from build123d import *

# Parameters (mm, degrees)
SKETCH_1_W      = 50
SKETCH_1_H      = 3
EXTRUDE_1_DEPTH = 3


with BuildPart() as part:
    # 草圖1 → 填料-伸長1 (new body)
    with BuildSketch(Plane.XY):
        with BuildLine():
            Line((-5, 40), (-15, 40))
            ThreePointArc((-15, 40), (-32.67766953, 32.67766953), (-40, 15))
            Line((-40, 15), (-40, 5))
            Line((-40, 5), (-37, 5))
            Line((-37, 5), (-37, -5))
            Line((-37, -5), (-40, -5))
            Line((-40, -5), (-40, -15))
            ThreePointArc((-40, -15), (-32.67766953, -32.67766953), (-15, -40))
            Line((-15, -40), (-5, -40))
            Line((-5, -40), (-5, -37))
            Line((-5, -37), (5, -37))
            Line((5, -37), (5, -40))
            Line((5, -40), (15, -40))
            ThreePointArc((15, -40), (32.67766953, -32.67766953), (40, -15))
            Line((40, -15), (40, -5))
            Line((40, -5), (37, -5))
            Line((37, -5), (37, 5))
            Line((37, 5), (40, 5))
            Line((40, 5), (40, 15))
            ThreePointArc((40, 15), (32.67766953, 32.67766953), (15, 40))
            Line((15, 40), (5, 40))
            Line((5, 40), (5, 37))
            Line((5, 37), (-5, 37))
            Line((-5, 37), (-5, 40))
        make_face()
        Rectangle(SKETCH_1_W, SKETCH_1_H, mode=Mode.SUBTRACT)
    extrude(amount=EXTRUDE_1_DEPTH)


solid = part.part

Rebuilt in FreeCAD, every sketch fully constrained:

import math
import FreeCAD as App
import Part
import Sketcher

V = App.Vector


def add_polygon(sketch, points):
    """Adds a closed chain of lines whose ends are joined by coincident constraints."""
    first, n = sketch.GeometryCount, len(points)
    for a, b in zip(points, points[1:] + points[:1]):
        sketch.addGeometry(Part.LineSegment(App.Vector(*a, 0), App.Vector(*b, 0)), False)
    for i in range(n):
        sketch.addConstraint(Sketcher.Constraint("Coincident", first + i, 2, first + (i + 1) % n, 1))

doc = App.newDocument("Part")
params = doc.addObject("Spreadsheet::Sheet", "Params")
for row, (alias, value) in enumerate([
    ("sketch1_radius", "25 mm"),
    ("sketch1_width", "10 mm"),
    ("sketch1_width2", "3 mm"),
    ("sketch1_width3", "50 mm"),
    ("pad1_length", "3 mm"),
], start=1):
    params.set(f"A{row}", alias)
    params.set(f"B{row}", "=" + value)
    params.setAlias(f"B{row}", alias)

body = doc.addObject("PartDesign::Body", "Body")

# Sketch on XY plane
sketch1 = body.newObject("Sketcher::SketchObject", "Sketch")
sketch1.AttachmentSupport = (doc.getObject("XY_Plane"), [""])
sketch1.MapMode = "FlatFace"
sketch1.addGeometry(Part.LineSegment(V(-5, 40, 0), V(-15, 40, 0)), False)  # 0
sketch1.addGeometry(Part.ArcOfCircle(Part.Circle(V(-15, 15, 0), V(0, 0, 1), 25), math.radians(90), math.radians(180)), False)  # 1
sketch1.addGeometry(Part.LineSegment(V(-40, 15, 0), V(-40, 5, 0)), False)  # 2
sketch1.addGeometry(Part.LineSegment(V(-40, 5, 0), V(-37, 5, 0)), False)  # 3
sketch1.addGeometry(Part.LineSegment(V(-37, 5, 0), V(-37, -5, 0)), False)  # 4
sketch1.addGeometry(Part.LineSegment(V(-37, -5, 0), V(-40, -5, 0)), False)  # 5
sketch1.addGeometry(Part.LineSegment(V(-40, -5, 0), V(-40, -15, 0)), False)  # 6
sketch1.addGeometry(Part.ArcOfCircle(Part.Circle(V(-15, -15, 0), V(0, 0, 1), 25), math.radians(180), math.radians(270)), False)  # 7
sketch1.addGeometry(Part.LineSegment(V(-15, -40, 0), V(-5, -40, 0)), False)  # 8
sketch1.addGeometry(Part.LineSegment(V(-5, -40, 0), V(-5, -37, 0)), False)  # 9
sketch1.addGeometry(Part.LineSegment(V(-5, -37, 0), V(5, -37, 0)), False)  # 10
sketch1.addGeometry(Part.LineSegment(V(5, -37, 0), V(5, -40, 0)), False)  # 11
sketch1.addGeometry(Part.LineSegment(V(5, -40, 0), V(15, -40, 0)), False)  # 12
sketch1.addGeometry(Part.ArcOfCircle(Part.Circle(V(15, -15, 0), V(0, 0, 1), 25), math.radians(-90), math.radians(0)), False)  # 13
sketch1.addGeometry(Part.LineSegment(V(40, -15, 0), V(40, -5, 0)), False)  # 14
sketch1.addGeometry(Part.LineSegment(V(40, -5, 0), V(37, -5, 0)), False)  # 15
sketch1.addGeometry(Part.LineSegment(V(37, -5, 0), V(37, 5, 0)), False)  # 16
sketch1.addGeometry(Part.LineSegment(V(37, 5, 0), V(40, 5, 0)), False)  # 17
sketch1.addGeometry(Part.LineSegment(V(40, 5, 0), V(40, 15, 0)), False)  # 18
sketch1.addGeometry(Part.ArcOfCircle(Part.Circle(V(15, 15, 0), V(0, 0, 1), 25), math.radians(0), math.radians(90)), False)  # 19
sketch1.addGeometry(Part.LineSegment(V(15, 40, 0), V(5, 40, 0)), False)  # 20
sketch1.addGeometry(Part.LineSegment(V(5, 40, 0), V(5, 37, 0)), False)  # 21
sketch1.addGeometry(Part.LineSegment(V(5, 37, 0), V(-5, 37, 0)), False)  # 22
sketch1.addGeometry(Part.LineSegment(V(-5, 37, 0), V(-5, 40, 0)), False)  # 23
add_polygon(sketch1, [(25, -1.5), (-25, -1.5), (-25, 1.5), (25, 1.5)])  # lines 24-27
sketch1.addConstraint([
    Sketcher.Constraint("Tangent", 0, 2, 1, 1),
    Sketcher.Constraint("Tangent", 1, 2, 2, 1),
    Sketcher.Constraint("Coincident", 2, 2, 3, 1),
    Sketcher.Constraint("Coincident", 3, 2, 4, 1),
    Sketcher.Constraint("Coincident", 4, 2, 5, 1),
    Sketcher.Constraint("Coincident", 5, 2, 6, 1),
    Sketcher.Constraint("Tangent", 6, 2, 7, 1),
    Sketcher.Constraint("Tangent", 7, 2, 8, 1),
    Sketcher.Constraint("Coincident", 8, 2, 9, 1),
    Sketcher.Constraint("Coincident", 9, 2, 10, 1),
    Sketcher.Constraint("Coincident", 10, 2, 11, 1),
    Sketcher.Constraint("Coincident", 11, 2, 12, 1),
    Sketcher.Constraint("Tangent", 12, 2, 13, 1),
    Sketcher.Constraint("Tangent", 13, 2, 14, 1),
    Sketcher.Constraint("Coincident", 14, 2, 15, 1),
    Sketcher.Constraint("Coincident", 15, 2, 16, 1),
    Sketcher.Constraint("Coincident", 16, 2, 17, 1),
    Sketcher.Constraint("Coincident", 17, 2, 18, 1),
    Sketcher.Constraint("Tangent", 18, 2, 19, 1),
    Sketcher.Constraint("Tangent", 19, 2, 20, 1),
    Sketcher.Constraint("Coincident", 20, 2, 21, 1),
    Sketcher.Constraint("Coincident", 21, 2, 22, 1),
    Sketcher.Constraint("Coincident", 22, 2, 23, 1),
    Sketcher.Constraint("Coincident", 23, 2, 0, 1),
    Sketcher.Constraint("Horizontal", 0),
    Sketcher.Constraint("Vertical", 2),
    Sketcher.Constraint("Horizontal", 3),
    Sketcher.Constraint("Vertical", 4),
    Sketcher.Constraint("Horizontal", 5),
    Sketcher.Constraint("Vertical", 6),
    Sketcher.Constraint("Horizontal", 8),
    Sketcher.Constraint("Vertical", 9),
    Sketcher.Constraint("Horizontal", 10),
    Sketcher.Constraint("Vertical", 11),
    Sketcher.Constraint("Horizontal", 12),
    Sketcher.Constraint("Vertical", 14),
    Sketcher.Constraint("Horizontal", 15),
    Sketcher.Constraint("Vertical", 16),
    Sketcher.Constraint("Horizontal", 17),
    Sketcher.Constraint("Vertical", 18),
    Sketcher.Constraint("Horizontal", 20),
    Sketcher.Constraint("Vertical", 21),
    Sketcher.Constraint("Horizontal", 22),
    Sketcher.Constraint("Vertical", 23),
    Sketcher.Constraint("Horizontal", 24),
    Sketcher.Constraint("Vertical", 25),
    Sketcher.Constraint("Horizontal", 26),
    Sketcher.Constraint("Vertical", 27),
    Sketcher.Constraint("Equal", 1, 7),
    Sketcher.Constraint("Equal", 7, 13),
    Sketcher.Constraint("Equal", 13, 19),
    Sketcher.Constraint("Symmetric", 1, 3, 13, 3, -1, 1),
    Sketcher.Constraint("Symmetric", 7, 3, 19, 3, -1, 1),
    Sketcher.Constraint("Symmetric", 3, 2, 15, 2, -1, 1),
    Sketcher.Constraint("Symmetric", 9, 2, 21, 2, -1, 1),
    Sketcher.Constraint("Symmetric", 24, 2, 26, 2, -1, 1),
    Sketcher.Constraint("Symmetric", 7, 3, 13, 3, -2),
    Sketcher.Constraint("Horizontal", 5, 2, 14, 2),
    Sketcher.Constraint("Horizontal", 3, 2, 16, 2),
    Sketcher.Constraint("Vertical", 11, 2, 20, 2),
    Sketcher.Constraint("Vertical", 9, 2, 22, 2),
    Sketcher.Constraint("Equal", 8, 10),
    Sketcher.Constraint("Equal", 22, 2),
    Sketcher.Constraint("Equal", 2, 4),
    Sketcher.Constraint("Equal", 17, 9),
    Sketcher.Constraint("Equal", 23, 25),
    Sketcher.Constraint("Radius", 1, 25.0),
    Sketcher.Constraint("DistanceX", 0, 2, 0, 1, 10.0),
    Sketcher.Constraint("DistanceX", 3, 1, 3, 2, 3.0),
    Sketcher.Constraint("DistanceX", 24, 2, 24, 1, 50.0),
])
sketch1.setExpression("Constraints[70]", "Params.sketch1_radius")
sketch1.setExpression("Constraints[71]", "Params.sketch1_width")
sketch1.setExpression("Constraints[72]", "Params.sketch1_width2")
sketch1.setExpression("Constraints[73]", "Params.sketch1_width3")
pad1 = body.newObject("PartDesign::Pad", "Pad")
pad1.Profile = sketch1
pad1.setExpression("Length", "Params.pad1_length")

doc.recompute()
